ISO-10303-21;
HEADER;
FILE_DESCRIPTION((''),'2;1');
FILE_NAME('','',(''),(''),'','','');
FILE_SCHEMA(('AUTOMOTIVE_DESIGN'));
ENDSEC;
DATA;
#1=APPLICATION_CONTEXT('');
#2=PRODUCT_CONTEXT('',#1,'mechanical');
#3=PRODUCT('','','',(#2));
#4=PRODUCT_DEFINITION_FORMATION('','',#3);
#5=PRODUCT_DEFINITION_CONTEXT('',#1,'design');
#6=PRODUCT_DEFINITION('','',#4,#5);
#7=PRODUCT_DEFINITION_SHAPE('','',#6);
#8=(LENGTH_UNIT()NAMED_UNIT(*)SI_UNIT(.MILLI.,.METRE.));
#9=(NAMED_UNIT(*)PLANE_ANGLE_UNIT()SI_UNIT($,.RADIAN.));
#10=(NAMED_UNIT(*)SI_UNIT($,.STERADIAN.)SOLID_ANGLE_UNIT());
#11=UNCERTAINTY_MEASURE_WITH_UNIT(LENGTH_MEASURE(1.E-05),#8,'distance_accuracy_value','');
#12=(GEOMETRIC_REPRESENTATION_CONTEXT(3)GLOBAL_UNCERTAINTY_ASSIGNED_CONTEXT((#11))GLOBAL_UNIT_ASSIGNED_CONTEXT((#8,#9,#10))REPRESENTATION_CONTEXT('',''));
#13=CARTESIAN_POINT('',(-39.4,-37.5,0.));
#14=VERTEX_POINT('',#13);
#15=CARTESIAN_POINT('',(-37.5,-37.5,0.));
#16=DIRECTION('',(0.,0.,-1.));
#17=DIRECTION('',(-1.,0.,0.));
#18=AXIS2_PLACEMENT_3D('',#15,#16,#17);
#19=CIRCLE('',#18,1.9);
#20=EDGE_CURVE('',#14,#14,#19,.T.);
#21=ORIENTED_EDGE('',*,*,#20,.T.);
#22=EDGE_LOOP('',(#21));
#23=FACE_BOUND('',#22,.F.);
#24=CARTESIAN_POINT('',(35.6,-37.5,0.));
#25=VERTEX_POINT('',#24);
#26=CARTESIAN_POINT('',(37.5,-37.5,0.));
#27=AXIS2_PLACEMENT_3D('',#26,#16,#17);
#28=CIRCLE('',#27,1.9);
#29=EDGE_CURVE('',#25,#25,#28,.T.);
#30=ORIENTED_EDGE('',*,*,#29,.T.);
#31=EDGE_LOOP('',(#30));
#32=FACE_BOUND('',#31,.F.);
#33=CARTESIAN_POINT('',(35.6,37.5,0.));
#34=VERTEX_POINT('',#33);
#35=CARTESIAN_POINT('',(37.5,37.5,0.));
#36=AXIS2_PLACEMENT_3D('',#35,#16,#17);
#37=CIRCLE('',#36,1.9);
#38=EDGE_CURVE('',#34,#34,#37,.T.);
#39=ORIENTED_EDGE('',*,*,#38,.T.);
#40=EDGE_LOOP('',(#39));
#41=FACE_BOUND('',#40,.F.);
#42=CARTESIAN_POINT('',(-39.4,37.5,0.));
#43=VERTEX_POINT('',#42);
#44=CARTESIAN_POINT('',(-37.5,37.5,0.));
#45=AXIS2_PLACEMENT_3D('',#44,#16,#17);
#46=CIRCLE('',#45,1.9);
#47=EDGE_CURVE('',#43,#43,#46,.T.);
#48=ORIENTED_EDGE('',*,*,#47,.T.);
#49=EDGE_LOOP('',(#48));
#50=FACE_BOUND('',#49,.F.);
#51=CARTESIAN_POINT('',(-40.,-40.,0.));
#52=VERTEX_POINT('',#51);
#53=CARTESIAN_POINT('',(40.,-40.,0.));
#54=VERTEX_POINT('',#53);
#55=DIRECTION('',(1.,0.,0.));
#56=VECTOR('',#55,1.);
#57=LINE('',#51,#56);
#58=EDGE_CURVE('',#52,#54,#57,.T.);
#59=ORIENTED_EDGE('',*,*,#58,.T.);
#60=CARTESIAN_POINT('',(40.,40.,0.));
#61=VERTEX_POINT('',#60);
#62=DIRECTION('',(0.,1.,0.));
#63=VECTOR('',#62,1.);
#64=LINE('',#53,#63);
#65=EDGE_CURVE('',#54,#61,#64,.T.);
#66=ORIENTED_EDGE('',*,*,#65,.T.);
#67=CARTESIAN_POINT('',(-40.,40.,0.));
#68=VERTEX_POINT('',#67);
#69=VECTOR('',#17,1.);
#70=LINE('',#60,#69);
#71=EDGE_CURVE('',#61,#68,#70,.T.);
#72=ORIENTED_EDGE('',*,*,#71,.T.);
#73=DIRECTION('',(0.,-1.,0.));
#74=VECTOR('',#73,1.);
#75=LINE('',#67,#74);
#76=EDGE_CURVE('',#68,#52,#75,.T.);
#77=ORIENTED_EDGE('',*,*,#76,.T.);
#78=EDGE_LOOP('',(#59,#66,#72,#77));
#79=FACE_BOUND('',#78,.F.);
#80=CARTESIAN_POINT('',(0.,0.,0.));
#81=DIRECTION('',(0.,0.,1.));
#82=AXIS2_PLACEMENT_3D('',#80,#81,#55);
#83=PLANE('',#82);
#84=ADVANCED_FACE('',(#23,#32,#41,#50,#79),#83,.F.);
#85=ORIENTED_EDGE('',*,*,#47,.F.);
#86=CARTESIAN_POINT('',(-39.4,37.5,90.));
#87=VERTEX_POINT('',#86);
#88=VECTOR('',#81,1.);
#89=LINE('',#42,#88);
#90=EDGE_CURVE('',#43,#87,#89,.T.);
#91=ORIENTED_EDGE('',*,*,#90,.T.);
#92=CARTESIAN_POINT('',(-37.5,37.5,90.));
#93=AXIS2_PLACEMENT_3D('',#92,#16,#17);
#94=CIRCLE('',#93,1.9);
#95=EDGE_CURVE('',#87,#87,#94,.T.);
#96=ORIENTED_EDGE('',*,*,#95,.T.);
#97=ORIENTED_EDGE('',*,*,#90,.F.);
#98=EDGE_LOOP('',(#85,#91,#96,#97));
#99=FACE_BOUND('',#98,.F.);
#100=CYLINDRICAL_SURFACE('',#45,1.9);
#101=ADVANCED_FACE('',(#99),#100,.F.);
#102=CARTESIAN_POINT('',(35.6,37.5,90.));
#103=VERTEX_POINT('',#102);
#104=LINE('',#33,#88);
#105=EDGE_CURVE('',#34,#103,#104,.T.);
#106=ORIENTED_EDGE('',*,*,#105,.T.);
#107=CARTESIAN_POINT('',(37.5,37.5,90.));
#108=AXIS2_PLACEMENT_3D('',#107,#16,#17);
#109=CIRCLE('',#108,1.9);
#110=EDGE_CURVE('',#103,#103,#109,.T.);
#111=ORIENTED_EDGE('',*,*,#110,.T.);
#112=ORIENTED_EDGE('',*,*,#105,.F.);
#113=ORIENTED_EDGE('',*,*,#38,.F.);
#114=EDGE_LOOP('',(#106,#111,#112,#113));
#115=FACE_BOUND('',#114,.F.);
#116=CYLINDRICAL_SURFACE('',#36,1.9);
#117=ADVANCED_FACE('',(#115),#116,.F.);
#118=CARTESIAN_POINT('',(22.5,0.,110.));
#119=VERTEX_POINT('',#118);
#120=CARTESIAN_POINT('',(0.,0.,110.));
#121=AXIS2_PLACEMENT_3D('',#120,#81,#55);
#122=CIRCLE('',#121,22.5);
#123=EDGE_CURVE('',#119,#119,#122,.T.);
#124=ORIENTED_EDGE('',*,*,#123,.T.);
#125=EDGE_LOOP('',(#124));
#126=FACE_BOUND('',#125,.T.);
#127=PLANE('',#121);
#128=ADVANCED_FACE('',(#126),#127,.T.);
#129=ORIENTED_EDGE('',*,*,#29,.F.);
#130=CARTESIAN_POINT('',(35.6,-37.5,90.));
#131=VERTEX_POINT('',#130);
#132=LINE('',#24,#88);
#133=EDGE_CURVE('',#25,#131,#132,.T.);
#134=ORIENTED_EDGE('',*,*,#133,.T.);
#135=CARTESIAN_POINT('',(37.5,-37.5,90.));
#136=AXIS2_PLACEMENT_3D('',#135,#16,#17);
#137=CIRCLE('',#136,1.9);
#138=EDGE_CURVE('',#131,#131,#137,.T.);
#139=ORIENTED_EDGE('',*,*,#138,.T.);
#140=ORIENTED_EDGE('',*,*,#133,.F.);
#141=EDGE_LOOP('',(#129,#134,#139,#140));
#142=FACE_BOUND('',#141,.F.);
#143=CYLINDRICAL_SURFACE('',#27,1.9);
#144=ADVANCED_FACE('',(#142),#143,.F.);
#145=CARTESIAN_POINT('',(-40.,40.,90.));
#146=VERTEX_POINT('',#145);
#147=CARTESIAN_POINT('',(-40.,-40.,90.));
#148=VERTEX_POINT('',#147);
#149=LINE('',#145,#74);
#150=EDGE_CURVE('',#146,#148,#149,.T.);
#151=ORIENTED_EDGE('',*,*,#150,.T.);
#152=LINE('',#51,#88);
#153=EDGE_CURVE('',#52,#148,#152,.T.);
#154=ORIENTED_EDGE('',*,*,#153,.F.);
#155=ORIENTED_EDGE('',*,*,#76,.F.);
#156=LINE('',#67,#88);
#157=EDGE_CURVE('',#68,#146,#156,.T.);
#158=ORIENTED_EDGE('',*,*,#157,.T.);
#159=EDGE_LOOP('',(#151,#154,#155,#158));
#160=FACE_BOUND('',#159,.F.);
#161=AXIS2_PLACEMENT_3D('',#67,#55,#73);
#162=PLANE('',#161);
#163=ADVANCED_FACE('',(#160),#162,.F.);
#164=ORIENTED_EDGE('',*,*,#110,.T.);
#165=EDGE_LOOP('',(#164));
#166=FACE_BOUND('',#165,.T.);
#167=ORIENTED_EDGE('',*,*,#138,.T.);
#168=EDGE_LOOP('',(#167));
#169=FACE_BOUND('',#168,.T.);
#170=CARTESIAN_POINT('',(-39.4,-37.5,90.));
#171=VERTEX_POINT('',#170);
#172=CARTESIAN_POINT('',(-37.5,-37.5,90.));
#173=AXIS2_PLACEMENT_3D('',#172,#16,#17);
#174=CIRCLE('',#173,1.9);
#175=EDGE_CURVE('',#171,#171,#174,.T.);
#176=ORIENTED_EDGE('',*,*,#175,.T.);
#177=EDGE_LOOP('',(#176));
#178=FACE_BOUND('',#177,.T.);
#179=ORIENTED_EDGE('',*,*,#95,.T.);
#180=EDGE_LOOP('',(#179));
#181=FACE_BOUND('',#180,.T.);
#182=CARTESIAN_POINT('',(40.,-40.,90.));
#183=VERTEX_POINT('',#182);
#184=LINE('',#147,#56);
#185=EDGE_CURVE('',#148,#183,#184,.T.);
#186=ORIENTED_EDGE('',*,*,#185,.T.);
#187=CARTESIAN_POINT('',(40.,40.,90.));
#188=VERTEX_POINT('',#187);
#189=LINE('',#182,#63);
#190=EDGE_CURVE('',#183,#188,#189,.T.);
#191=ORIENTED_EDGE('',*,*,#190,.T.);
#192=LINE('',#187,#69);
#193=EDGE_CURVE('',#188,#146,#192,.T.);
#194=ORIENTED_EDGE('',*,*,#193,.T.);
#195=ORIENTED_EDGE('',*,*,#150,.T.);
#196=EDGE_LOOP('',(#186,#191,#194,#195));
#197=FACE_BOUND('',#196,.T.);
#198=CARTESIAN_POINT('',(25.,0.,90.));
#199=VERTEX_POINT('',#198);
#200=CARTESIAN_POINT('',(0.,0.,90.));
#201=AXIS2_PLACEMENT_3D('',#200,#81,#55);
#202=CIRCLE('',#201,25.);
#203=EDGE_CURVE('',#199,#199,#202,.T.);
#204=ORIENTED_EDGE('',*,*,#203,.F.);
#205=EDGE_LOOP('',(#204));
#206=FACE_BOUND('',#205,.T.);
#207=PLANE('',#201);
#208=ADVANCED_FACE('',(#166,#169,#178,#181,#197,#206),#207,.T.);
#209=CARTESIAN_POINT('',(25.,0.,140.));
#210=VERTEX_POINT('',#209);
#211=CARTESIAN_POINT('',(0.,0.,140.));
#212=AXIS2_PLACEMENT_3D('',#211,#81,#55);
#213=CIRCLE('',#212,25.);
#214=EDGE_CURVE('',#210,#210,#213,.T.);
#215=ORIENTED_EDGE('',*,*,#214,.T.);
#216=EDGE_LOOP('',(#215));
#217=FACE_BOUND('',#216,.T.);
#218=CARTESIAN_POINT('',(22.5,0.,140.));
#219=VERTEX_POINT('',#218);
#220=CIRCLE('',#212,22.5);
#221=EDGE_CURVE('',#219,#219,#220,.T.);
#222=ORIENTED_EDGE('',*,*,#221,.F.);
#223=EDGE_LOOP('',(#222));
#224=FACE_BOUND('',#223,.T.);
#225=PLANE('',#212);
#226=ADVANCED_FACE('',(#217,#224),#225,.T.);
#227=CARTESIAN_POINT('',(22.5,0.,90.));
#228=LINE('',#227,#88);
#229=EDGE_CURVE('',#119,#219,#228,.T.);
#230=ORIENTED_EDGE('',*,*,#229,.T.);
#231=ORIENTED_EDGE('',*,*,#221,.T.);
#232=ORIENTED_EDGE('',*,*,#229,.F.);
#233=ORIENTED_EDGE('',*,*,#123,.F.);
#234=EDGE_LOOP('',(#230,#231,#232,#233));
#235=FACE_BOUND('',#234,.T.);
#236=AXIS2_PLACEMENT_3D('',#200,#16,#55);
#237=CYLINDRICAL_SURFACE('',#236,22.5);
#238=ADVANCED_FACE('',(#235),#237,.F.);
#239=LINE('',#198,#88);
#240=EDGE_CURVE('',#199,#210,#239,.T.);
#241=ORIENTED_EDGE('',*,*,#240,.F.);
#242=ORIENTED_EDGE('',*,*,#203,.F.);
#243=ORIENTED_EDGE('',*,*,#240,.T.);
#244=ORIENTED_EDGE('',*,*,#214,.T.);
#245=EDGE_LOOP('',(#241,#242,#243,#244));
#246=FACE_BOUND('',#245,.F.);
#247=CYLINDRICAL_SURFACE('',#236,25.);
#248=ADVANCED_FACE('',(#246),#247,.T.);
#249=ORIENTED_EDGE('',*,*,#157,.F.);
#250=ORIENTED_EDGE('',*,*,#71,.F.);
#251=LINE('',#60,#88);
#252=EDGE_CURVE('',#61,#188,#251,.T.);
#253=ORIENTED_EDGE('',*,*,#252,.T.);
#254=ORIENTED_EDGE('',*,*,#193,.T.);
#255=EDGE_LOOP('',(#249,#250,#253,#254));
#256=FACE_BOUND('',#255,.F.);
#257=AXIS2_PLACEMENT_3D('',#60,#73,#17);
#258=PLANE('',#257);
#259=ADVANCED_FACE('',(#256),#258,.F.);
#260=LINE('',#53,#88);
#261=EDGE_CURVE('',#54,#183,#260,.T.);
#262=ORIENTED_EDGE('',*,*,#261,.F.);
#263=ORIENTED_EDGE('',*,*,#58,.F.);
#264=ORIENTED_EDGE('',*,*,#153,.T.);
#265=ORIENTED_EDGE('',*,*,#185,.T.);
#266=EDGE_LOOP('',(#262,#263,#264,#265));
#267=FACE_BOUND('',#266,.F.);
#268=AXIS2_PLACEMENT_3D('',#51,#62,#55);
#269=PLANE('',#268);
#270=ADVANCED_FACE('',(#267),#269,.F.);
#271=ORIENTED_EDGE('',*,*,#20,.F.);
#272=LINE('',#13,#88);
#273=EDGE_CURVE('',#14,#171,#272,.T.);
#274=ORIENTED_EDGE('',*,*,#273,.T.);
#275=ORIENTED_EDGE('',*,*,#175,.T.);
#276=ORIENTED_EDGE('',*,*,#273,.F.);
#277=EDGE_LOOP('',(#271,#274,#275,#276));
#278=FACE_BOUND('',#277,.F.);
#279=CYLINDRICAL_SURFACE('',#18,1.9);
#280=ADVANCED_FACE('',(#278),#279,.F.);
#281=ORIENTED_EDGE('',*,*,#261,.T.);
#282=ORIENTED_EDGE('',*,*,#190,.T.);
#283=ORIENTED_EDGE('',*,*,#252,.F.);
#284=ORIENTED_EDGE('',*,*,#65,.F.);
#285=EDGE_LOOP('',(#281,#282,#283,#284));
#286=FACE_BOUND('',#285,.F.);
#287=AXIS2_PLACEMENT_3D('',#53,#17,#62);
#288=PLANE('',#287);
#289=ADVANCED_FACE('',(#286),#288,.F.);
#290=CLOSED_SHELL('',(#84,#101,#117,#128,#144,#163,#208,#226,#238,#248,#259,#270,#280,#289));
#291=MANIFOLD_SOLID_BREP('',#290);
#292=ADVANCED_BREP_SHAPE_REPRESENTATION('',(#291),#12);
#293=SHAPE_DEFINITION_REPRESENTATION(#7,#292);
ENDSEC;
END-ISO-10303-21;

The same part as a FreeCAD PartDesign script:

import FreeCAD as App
import Part
import Sketcher
from FreeCAD import Vector


def add_polygon(sketch, points):
    """Adds a closed chain of lines whose ends are joined by coincident constraints."""
    first, n = sketch.GeometryCount, len(points)
    for a, b in zip(points, points[1:] + points[:1]):
        sketch.addGeometry(Part.LineSegment(App.Vector(*a, 0), App.Vector(*b, 0)), False)
    for i in range(n):
        sketch.addConstraint(Sketcher.Constraint("Coincident", first + i, 2, first + (i + 1) % n, 1))

doc = App.newDocument("Part")
params = doc.addObject("Spreadsheet::Sheet", "Params")
for row, (alias, value) in enumerate([
    ("sketch1_width", "80 mm"),
    ("pad1_length", "90 mm"),
    ("sketch2_diameter", "50 mm"),
    ("sketch2_diameter2", "45 mm"),
    ("pad2_length", "50 mm"),
    ("sketch3_diameter", "3.8 mm"),
    ("pocket1_length", "90 mm"),
    ("sketch4_diameter", "45 mm"),
    ("pad3_length", "20 mm"),
], start=1):
    params.set(f"A{row}", alias)
    params.set(f"B{row}", "=" + value)
    params.setAlias(f"B{row}", alias)

body = doc.addObject("PartDesign::Body", "Body")

# Sketch on XY plane
sketch1 = doc.addObject("Sketcher::SketchObject", "Sketch")
body.addObject(sketch1)
sketch1.AttachmentSupport = (doc.XY_Plane, [""])
sketch1.MapMode = "FlatFace"
add_polygon(sketch1, [(-40, 40), (-40, -40), (40, -40), (40, 40)])  # lines 0-3
sketch1.addConstraint([
    Sketcher.Constraint("Vertical", 0),
    Sketcher.Constraint("Horizontal", 1),
    Sketcher.Constraint("Vertical", 2),
    Sketcher.Constraint("Horizontal", 3),
    Sketcher.Constraint("Symmetric", 0, 2, 2, 2, -1, 1),
    Sketcher.Constraint("Equal", 3, 0),
    Sketcher.Constraint("DistanceX", 1, 1, 1, 2, 80.0),
])
sketch1.setExpression("Constraints[10]", "Params.sketch1_width")
pad1 = doc.addObject("PartDesign::Pad", "Pad")
body.addObject(pad1)
pad1.Profile = sketch1
pad1.setExpression("Length", "Params.pad1_length")

# Sketch on XY plane
sketch2 = doc.addObject("Sketcher::SketchObject", "Sketch001")
body.addObject(sketch2)
sketch2.AttachmentSupport = (doc.XY_Plane, [""])
sketch2.MapMode = "FlatFace"
sketch2.AttachmentOffset = App.Placement(Vector(0, 0, 90), App.Rotation())
sketch2.addGeometry([
    Part.Circle(Vector(0, 0, 0), Vector(0, 0, 1), 25),
    Part.Circle(Vector(0, 0, 0), Vector(0, 0, 1), 22),
], False)
sketch2.addConstraint([
    Sketcher.Constraint("Coincident", 0, 3, -1, 1),
    Sketcher.Constraint("Coincident", 1, 3, -1, 1),
    Sketcher.Constraint("Diameter", 0, 50.0),
    Sketcher.Constraint("Diameter", 1, 45.0),
])
sketch2.setExpression("Constraints[2]", "Params.sketch2_diameter")
sketch2.setExpression("Constraints[3]", "Params.sketch2_diameter2")
pad2 = doc.addObject("PartDesign::Pad", "Pad001")
body.addObject(pad2)
pad2.Profile = sketch2
pad2.setExpression("Length", "Params.pad2_length")

# Sketch on XY plane
sketch3 = doc.addObject("Sketcher::SketchObject", "Sketch002")
body.addObject(sketch3)
sketch3.AttachmentSupport = (doc.XY_Plane, [""])
sketch3.MapMode = "FlatFace"
sketch3.addGeometry([
    Part.Circle(Vector(37.5, 37.5, 0), Vector(0, 0, 1), 1.9),
    Part.Circle(Vector(-37.5, 37.5, 0), Vector(0, 0, 1), 1.9),
    Part.Circle(Vector(-37.5, -37.5, 0), Vector(0, 0, 1), 1.9),
    Part.Circle(Vector(37.5, -37.5, 0), Vector(0, 0, 1), 1.9),
], False)
sketch3.addConstraint([
    Sketcher.Constraint("Equal", 0, 1),
    Sketcher.Constraint("Equal", 1, 2),
    Sketcher.Constraint("Equal", 2, 3),
    Sketcher.Constraint("Symmetric", 0, 3, 2, 3, -1, 1),
    Sketcher.Constraint("Symmetric", 1, 3, 3, 3, -1, 1),
    Sketcher.Constraint("Symmetric", 0, 3, 1, 3, -2),
    Sketcher.Constraint("Diameter", 0, 3.8),
    Sketcher.Constraint("DistanceX", 1, 3, 0, 3, 75.0),
    Sketcher.Constraint("DistanceY", 2, 3, 1, 3, 75.0),
])
sketch3.setExpression("Constraints[6]", "Params.sketch3_diameter")
pocket1 = doc.addObject("PartDesign::Pocket", "Pocket")
body.addObject(pocket1)
pocket1.Profile = sketch3
pocket1.setExpression("Length", "Params.pocket1_length")
pocket1.Reversed = True

# Sketch on XY plane
sketch4 = doc.addObject("Sketcher::SketchObject", "Sketch003")
body.addObject(sketch4)
sketch4.AttachmentSupport = (doc.XY_Plane, [""])
sketch4.MapMode = "FlatFace"
sketch4.AttachmentOffset = App.Placement(Vector(0, 0, 90), App.Rotation())
sketch4.addGeometry(Part.Circle(Vector(0, 0, 0), Vector(0, 0, 1), 22), False)
sketch4.addConstraint([
    Sketcher.Constraint("Coincident", 0, 3, -1, 1),
    Sketcher.Constraint("Diameter", 0, 45.0),
])
sketch4.setExpression("Constraints[1]", "Params.sketch4_diameter")
pad3 = doc.addObject("PartDesign::Pad", "Pad002")
body.addObject(pad3)
pad3.Profile = sketch4
pad3.setExpression("Length", "Params.pad3_length")

doc.recompute()
